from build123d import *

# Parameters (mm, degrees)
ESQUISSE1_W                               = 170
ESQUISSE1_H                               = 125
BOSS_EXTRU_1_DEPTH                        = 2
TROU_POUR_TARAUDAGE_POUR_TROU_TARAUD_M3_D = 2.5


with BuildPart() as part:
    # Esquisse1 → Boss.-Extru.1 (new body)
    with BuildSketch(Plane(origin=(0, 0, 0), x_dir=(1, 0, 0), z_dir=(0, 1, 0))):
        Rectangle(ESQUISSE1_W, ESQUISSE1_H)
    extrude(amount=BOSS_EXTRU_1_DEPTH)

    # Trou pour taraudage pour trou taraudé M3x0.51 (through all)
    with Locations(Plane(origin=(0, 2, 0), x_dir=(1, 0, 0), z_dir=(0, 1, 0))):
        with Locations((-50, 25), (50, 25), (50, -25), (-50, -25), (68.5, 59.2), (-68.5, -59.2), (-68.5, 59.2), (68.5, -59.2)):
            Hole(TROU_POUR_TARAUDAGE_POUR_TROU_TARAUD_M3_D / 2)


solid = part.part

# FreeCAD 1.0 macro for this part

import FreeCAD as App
import Part
import Sketcher
Q = App.Units.Quantity

doc = App.newDocument("Part")
body = doc.addObject("PartDesign::Body", "Body")

# Sketch on XZ plane
sketch1 = doc.addObject("Sketcher::SketchObject", "Sketch")
body.addObject(sketch1)
sketch1.AttachmentSupport = (doc.XZ_Plane, [""])
sketch1.MapMode = "FlatFace"
sketch1.addGeometry([
    Part.LineSegment(App.Vector(-85, -62, 0), App.Vector(-85, 62, 0)),
    Part.LineSegment(App.Vector(-85, 62, 0), App.Vector(85, 62, 0)),
    Part.LineSegment(App.Vector(85, 62, 0), App.Vector(85, -62, 0)),
    Part.LineSegment(App.Vector(85, -62, 0), App.Vector(-85, -62, 0)),
], False)
sketch1.addConstraint([
    Sketcher.Constraint("Coincident", 0, 2, 1, 1),
    Sketcher.Constraint("Coincident", 1, 2, 2, 1),
    Sketcher.Constraint("Coincident", 2, 2, 3, 1),
    Sketcher.Constraint("Coincident", 3, 2, 0, 1),
    Sketcher.Constraint("Vertical", 0),
    Sketcher.Constraint("Horizontal", 1),
    Sketcher.Constraint("Vertical", 2),
    Sketcher.Constraint("Horizontal", 3),
    Sketcher.Constraint("Symmetric", 0, 2, 2, 2, -1, 1),
    Sketcher.Constraint("DistanceX", 1, 1, 1, 2, Q("170 mm")),
    Sketcher.Constraint("DistanceY", 0, 1, 0, 2, Q("125 mm")),
])
pad1 = doc.addObject("PartDesign::Pad", "Pad")
body.addObject(pad1)
pad1.Profile = sketch1
pad1.Length = 2
pad1.Reversed = True

# Sketch on XZ plane
sketch2 = doc.addObject("Sketcher::SketchObject", "Sketch001")
body.addObject(sketch2)
sketch2.AttachmentSupport = (doc.XZ_Plane, [""])
sketch2.MapMode = "FlatFace"
sketch2.AttachmentOffset = App.Placement(App.Vector(0, 0, -2), App.Rotation())
sketch2.addGeometry([
    Part.Circle(App.Vector(-50, -25, 0), App.Vector(0, 0, 1), 1.2),  # 0
    Part.Circle(App.Vector(50, -25, 0), App.Vector(0, 0, 1), 1.2),  # 1
    Part.Circle(App.Vector(50, 25, 0), App.Vector(0, 0, 1), 1.2),  # 2
    Part.Circle(App.Vector(-50, 25, 0), App.Vector(0, 0, 1), 1.2),  # 3
    Part.Circle(App.Vector(68.5, -59.2, 0), App.Vector(0, 0, 1), 1.2),  # 4
    Part.Circle(App.Vector(-68.5, 59.2, 0), App.Vector(0, 0, 1), 1.2),  # 5
    Part.Circle(App.Vector(-68.5, -59.2, 0), App.Vector(0, 0, 1), 1.2),  # 6
    Part.Circle(App.Vector(68.5, 59.2, 0), App.Vector(0, 0, 1), 1.2),  # 7
], False)
sketch2.addConstraint([
    Sketcher.Constraint("Equal", 0, 1),
    Sketcher.Constraint("Equal", 1, 2),
    Sketcher.Constraint("Equal", 2, 3),
    Sketcher.Constraint("Equal", 3, 4),
    Sketcher.Constraint("Equal", 4, 5),
    Sketcher.Constraint("Equal", 5, 6),
    Sketcher.Constraint("Equal", 6, 7),
    Sketcher.Constraint("Symmetric", 0, 3, 2, 3, -1, 1),
    Sketcher.Constraint("Symmetric", 1, 3, 3, 3, -1, 1),
    Sketcher.Constraint("Symmetric", 4, 3, 5, 3, -1, 1),
    Sketcher.Constraint("Symmetric", 6, 3, 7, 3, -1, 1),
    Sketcher.Constraint("Symmetric", 0, 3, 1, 3, -2),
    Sketcher.Constraint("Symmetric", 4, 3, 6, 3, -2),
    Sketcher.Constraint("Diameter", 0, Q("2.5 mm")),
    Sketcher.Constraint("DistanceX", 0, 3, -1, 1, Q("50 mm")),
    Sketcher.Constraint("DistanceY", 0, 3, -1, 1, Q("25 mm")),
    Sketcher.Constraint("DistanceX", 5, 3, 4, 3, Q("137 mm")),
    Sketcher.Constraint("DistanceY", 4, 3, -1, 1, Q("59.2 mm")),
])
doc.recompute()
hole = doc.addObject("PartDesign::Hole", "Hole")
body.addObject(hole)
hole.Profile = sketch2
hole.ThreadType = "None"
hole.Diameter = 2.5
hole.DepthType = "ThroughAll"
hole.Reversed = True

doc.recompute()
